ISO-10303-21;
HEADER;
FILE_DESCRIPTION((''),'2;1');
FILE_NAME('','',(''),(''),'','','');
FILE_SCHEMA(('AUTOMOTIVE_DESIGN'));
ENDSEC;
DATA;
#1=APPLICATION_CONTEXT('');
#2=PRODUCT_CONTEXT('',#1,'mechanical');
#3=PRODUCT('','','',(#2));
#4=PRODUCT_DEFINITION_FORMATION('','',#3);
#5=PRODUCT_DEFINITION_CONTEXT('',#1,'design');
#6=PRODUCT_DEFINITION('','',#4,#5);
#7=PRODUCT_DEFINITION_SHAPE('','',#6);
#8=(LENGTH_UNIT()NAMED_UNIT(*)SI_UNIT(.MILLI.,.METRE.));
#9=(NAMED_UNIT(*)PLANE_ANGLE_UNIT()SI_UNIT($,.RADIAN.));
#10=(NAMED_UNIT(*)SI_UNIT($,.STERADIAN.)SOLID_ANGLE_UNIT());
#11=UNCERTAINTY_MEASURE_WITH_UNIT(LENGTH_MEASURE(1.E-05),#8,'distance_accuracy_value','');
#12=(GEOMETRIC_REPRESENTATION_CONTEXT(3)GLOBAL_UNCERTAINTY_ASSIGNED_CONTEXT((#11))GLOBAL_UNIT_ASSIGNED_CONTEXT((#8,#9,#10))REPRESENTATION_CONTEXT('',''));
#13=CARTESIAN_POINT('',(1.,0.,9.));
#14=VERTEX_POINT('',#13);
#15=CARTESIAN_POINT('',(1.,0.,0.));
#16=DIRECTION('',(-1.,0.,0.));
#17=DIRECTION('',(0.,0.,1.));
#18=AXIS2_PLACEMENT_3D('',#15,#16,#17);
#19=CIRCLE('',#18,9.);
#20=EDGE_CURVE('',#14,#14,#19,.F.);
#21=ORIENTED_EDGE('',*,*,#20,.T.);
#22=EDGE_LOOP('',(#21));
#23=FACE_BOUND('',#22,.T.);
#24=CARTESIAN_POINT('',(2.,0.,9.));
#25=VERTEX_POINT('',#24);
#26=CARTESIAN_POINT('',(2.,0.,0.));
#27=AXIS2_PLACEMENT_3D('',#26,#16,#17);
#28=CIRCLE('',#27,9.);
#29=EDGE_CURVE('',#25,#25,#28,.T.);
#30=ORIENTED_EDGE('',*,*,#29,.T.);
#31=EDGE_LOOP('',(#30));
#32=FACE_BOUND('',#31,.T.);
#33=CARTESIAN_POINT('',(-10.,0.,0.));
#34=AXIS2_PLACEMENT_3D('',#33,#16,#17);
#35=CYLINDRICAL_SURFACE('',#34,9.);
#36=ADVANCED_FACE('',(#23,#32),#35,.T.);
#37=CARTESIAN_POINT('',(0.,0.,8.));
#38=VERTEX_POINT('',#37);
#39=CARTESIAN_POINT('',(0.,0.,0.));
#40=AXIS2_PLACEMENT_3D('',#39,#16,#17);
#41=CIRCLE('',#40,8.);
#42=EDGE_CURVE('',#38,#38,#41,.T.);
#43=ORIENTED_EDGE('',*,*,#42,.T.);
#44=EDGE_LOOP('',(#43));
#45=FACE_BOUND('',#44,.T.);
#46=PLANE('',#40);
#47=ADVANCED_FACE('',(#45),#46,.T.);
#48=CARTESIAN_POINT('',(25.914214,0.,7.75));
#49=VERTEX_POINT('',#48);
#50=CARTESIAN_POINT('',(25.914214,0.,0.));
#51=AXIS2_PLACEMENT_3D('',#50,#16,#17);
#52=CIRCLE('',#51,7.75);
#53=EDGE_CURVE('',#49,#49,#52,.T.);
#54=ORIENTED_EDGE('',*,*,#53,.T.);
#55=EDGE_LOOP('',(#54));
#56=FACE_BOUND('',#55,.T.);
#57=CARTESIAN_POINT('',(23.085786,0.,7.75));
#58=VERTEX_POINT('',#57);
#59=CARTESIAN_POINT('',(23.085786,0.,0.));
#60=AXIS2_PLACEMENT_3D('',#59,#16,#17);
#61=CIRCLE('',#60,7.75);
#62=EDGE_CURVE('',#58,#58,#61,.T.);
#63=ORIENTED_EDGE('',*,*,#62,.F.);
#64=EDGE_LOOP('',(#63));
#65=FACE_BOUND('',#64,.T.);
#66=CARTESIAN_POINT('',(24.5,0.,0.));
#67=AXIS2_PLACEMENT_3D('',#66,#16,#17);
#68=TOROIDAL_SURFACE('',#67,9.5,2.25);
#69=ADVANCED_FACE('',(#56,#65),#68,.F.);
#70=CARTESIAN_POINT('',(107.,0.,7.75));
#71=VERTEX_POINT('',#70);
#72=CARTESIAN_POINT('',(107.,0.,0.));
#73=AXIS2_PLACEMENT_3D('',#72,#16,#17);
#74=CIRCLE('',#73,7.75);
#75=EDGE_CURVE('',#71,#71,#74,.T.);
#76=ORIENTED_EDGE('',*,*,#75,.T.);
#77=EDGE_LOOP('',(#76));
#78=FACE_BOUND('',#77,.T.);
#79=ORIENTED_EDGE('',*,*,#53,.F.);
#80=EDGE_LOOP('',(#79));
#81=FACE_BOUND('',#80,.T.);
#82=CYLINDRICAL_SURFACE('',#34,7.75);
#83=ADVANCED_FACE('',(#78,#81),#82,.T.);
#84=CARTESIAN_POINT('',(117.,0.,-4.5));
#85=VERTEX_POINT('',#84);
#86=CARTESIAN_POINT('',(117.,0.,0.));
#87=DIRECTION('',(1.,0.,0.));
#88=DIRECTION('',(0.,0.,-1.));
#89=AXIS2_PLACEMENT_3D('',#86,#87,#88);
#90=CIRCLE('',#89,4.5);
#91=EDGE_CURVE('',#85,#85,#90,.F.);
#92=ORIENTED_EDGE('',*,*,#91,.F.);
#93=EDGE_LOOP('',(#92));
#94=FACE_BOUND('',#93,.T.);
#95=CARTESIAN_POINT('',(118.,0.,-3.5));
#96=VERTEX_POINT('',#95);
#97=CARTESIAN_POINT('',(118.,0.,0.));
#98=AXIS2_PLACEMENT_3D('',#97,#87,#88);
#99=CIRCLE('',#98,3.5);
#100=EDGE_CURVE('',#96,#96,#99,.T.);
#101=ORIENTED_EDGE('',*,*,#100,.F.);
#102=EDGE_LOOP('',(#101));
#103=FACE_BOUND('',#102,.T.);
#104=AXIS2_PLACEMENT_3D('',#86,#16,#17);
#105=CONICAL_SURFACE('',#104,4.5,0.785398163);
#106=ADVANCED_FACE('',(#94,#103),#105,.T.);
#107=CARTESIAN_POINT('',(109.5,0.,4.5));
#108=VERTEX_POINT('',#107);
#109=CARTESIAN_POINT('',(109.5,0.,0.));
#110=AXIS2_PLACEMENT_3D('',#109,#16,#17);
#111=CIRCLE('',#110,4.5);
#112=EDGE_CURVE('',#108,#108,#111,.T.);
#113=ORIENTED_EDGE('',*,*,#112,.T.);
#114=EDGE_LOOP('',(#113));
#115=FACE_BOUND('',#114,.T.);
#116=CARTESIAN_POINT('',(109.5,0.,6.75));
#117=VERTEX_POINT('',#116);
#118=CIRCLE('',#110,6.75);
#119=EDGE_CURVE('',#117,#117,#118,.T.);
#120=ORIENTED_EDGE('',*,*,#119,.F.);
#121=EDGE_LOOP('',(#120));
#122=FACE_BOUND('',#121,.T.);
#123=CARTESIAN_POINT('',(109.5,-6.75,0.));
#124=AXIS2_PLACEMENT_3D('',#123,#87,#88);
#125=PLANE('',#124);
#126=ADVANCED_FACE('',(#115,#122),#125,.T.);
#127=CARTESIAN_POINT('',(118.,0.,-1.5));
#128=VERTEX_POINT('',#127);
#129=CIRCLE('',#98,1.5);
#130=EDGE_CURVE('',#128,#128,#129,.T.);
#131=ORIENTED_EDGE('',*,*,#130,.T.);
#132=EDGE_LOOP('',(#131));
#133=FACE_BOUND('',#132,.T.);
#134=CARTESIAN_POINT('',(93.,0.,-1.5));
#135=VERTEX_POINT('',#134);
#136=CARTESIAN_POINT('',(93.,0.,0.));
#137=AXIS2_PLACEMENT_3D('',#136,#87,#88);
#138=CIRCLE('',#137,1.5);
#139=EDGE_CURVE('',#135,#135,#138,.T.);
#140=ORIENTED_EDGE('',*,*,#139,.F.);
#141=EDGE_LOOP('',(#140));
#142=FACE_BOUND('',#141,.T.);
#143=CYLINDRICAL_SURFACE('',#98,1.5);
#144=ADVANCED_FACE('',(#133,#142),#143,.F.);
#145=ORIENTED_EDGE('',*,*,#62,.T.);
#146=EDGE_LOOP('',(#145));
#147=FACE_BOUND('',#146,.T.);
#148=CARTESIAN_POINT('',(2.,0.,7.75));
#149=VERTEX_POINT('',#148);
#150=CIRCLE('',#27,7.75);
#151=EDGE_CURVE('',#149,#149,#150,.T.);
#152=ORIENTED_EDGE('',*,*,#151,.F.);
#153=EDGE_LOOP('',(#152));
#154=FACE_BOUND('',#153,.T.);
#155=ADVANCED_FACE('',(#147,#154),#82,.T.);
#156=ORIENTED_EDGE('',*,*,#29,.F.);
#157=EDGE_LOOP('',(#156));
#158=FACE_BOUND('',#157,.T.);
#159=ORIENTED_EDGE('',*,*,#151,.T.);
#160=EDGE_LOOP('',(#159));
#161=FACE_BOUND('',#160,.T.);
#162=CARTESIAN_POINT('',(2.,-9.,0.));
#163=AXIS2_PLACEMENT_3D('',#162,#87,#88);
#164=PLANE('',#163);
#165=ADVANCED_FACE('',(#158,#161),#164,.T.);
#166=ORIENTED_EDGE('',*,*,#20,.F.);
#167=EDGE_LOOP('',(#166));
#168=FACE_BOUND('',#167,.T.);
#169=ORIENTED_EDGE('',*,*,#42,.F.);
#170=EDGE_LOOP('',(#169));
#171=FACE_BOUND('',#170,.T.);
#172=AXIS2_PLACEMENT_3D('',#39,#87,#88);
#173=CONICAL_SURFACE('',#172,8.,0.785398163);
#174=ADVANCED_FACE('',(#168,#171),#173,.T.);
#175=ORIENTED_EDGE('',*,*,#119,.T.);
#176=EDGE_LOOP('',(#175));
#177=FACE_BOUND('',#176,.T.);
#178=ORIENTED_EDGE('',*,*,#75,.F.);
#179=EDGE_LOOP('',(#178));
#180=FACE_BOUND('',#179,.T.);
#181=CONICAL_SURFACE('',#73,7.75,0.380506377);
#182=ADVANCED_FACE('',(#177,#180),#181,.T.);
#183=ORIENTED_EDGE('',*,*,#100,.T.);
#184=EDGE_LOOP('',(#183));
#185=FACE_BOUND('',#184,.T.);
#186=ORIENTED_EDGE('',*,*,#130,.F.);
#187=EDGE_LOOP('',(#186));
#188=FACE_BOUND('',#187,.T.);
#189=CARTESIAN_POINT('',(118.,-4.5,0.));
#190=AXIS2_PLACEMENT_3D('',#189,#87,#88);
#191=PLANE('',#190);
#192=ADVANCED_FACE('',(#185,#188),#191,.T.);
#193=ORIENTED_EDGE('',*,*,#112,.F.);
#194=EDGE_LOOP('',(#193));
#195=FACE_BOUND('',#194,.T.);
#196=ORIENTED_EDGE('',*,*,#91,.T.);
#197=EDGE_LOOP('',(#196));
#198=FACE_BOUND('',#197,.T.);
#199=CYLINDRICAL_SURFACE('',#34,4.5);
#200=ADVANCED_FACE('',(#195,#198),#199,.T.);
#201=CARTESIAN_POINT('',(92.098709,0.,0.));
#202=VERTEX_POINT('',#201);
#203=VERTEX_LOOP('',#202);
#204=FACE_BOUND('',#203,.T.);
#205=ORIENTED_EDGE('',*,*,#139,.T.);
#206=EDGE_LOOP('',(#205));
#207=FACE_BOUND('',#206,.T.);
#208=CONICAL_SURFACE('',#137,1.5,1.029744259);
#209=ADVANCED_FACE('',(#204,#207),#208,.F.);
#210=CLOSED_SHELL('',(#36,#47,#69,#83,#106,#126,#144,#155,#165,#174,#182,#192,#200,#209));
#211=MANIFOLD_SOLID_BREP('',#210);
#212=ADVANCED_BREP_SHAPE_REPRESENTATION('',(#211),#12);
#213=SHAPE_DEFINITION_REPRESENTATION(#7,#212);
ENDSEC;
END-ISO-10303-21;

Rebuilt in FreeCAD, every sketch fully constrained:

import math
import FreeCAD as App
import Part
import Sketcher
Q = App.Units.Quantity


def edges_at(feature, points):
    """Names of the edges that pass closest to the given points."""
    edges = feature.Shape.Edges
    near = lambda p: min(range(len(edges)), key=lambda i: edges[i].distToShape(Part.Vertex(*p))[0])
    return sorted({f"Edge{near(p) + 1}" for p in points})

doc = App.newDocument("Part")
body = doc.addObject("PartDesign::Body", "Body")

sketch1 = body.newObject("Sketcher::SketchObject", "Sketch")
sketch1.AttachmentSupport = (doc.getObject("XY_Plane"), [""])
sketch1.MapMode = "FlatFace"
sketch1.addGeometry([
    Part.LineSegment(App.Vector(0, 0, 0), App.Vector(0, -9, 0)),
    Part.LineSegment(App.Vector(0, -9, 0), App.Vector(2, -9, 0)),
    Part.LineSegment(App.Vector(2, -9, 0), App.Vector(2, -7.8, 0)),
    Part.LineSegment(App.Vector(2, -7.8, 0), App.Vector(23.1, -7.8, 0)),
    Part.ArcOfCircle(Part.Circle(App.Vector(24.5, -9.5, 0), App.Vector(0, 0, 1), 2.2), math.radians(51), math.radians(129)),
    Part.LineSegment(App.Vector(25.9, -7.8, 0), App.Vector(107, -7.8, 0)),
    Part.LineSegment(App.Vector(107, -7.8, 0), App.Vector(109.5, -6.8, 0)),
    Part.LineSegment(App.Vector(109.5, -6.8, 0), App.Vector(109.5, -4.5, 0)),
    Part.LineSegment(App.Vector(109.5, -4.5, 0), App.Vector(118, -4.5, 0)),
    Part.LineSegment(App.Vector(118, -4.5, 0), App.Vector(118, 0, 0)),
    Part.LineSegment(App.Vector(118, 0, 0), App.Vector(0, 0, 0)),
], False)
sketch1.addConstraint([
    Sketcher.Constraint("Coincident", 0, 2, 1, 1),
    Sketcher.Constraint("Coincident", 1, 2, 2, 1),
    Sketcher.Constraint("Coincident", 2, 2, 3, 1),
    Sketcher.Constraint("Coincident", 3, 2, 4, 2),
    Sketcher.Constraint("Coincident", 4, 1, 5, 1),
    Sketcher.Constraint("Coincident", 5, 2, 6, 1),
    Sketcher.Constraint("Coincident", 6, 2, 7, 1),
    Sketcher.Constraint("Coincident", 7, 2, 8, 1),
    Sketcher.Constraint("Coincident", 8, 2, 9, 1),
    Sketcher.Constraint("Coincident", 9, 2, 10, 1),
    Sketcher.Constraint("Coincident", 10, 2, 0, 1),
    Sketcher.Constraint("Vertical", 0),
    Sketcher.Constraint("Horizontal", 1),
    Sketcher.Constraint("Vertical", 2),
    Sketcher.Constraint("Horizontal", 3),
    Sketcher.Constraint("Horizontal", 5),
    Sketcher.Constraint("Vertical", 7),
    Sketcher.Constraint("Horizontal", 8),
    Sketcher.Constraint("Vertical", 9),
    Sketcher.Constraint("Horizontal", 10),
    Sketcher.Constraint("Coincident", 10, 2, -1, 1),
    Sketcher.Constraint("Horizontal", 3, 2, 4, 1),
    Sketcher.Constraint("DistanceX", 1, 1, 1, 2, Q("2 mm")),
    Sketcher.Constraint("DistanceX", 10, 2, 10, 1, Q("118 mm")),
    Sketcher.Constraint("DistanceY", 0, 2, 0, 1, Q("9 mm")),
    Sketcher.Constraint("Radius", 4, Q("2.25 mm")),
    Sketcher.Constraint("DistanceX", 8, 1, 8, 2, Q("8.5 mm")),
    Sketcher.Constraint("DistanceY", 9, 1, 9, 2, Q("4.5 mm")),
    Sketcher.Constraint("DistanceX", -1, 1, 5, 2, Q("107 mm")),
    Sketcher.Constraint("DistanceY", 5, 2, 6, 2, Q("1 mm")),
    Sketcher.Constraint("DistanceX", 4, 3, 6, 2, Q("85 mm")),
    Sketcher.Constraint("DistanceY", 4, 3, 7, 2, Q("5 mm")),
    Sketcher.Constraint("DistanceY", 2, 1, 2, 2, Q("1.25 mm")),
])
revolution = body.newObject("PartDesign::Revolution", "Revolution")
revolution.Profile = sketch1
revolution.ReferenceAxis = (sketch1, ["H_Axis"])
revolution.Angle = 360
doc.recompute()

chamfer = body.newObject("PartDesign::Chamfer", "Chamfer")
chamfer.Base = (revolution, edges_at(revolution, [(0, 0, -9), (118, 0, -4.5)]))
chamfer.Size = 1

sketch2 = body.newObject("Sketcher::SketchObject", "Sketch001")
sketch2.AttachmentSupport = (doc.getObject("YZ_Plane"), [""])
sketch2.MapMode = "FlatFace"
sketch2.AttachmentOffset = App.Placement(App.Vector(0, 0, 118), App.Rotation())
sketch2.addGeometry(Part.Circle(App.Vector(0, 0, 0), App.Vector(0, 0, 1), 1.5), False)
sketch2.addConstraint([
    Sketcher.Constraint("Coincident", 0, 3, -1, 1),
    Sketcher.Constraint("Diameter", 0, Q("3 mm")),
])
doc.recompute()
hole = body.newObject("PartDesign::Hole", "Hole")
hole.Profile = sketch2
hole.ThreadType = "None"
hole.Diameter = 3
hole.DepthType = "Dimension"
hole.Depth = 25
hole.DrillPoint = "Angled"
hole.DrillPointAngle = 118

doc.recompute()
